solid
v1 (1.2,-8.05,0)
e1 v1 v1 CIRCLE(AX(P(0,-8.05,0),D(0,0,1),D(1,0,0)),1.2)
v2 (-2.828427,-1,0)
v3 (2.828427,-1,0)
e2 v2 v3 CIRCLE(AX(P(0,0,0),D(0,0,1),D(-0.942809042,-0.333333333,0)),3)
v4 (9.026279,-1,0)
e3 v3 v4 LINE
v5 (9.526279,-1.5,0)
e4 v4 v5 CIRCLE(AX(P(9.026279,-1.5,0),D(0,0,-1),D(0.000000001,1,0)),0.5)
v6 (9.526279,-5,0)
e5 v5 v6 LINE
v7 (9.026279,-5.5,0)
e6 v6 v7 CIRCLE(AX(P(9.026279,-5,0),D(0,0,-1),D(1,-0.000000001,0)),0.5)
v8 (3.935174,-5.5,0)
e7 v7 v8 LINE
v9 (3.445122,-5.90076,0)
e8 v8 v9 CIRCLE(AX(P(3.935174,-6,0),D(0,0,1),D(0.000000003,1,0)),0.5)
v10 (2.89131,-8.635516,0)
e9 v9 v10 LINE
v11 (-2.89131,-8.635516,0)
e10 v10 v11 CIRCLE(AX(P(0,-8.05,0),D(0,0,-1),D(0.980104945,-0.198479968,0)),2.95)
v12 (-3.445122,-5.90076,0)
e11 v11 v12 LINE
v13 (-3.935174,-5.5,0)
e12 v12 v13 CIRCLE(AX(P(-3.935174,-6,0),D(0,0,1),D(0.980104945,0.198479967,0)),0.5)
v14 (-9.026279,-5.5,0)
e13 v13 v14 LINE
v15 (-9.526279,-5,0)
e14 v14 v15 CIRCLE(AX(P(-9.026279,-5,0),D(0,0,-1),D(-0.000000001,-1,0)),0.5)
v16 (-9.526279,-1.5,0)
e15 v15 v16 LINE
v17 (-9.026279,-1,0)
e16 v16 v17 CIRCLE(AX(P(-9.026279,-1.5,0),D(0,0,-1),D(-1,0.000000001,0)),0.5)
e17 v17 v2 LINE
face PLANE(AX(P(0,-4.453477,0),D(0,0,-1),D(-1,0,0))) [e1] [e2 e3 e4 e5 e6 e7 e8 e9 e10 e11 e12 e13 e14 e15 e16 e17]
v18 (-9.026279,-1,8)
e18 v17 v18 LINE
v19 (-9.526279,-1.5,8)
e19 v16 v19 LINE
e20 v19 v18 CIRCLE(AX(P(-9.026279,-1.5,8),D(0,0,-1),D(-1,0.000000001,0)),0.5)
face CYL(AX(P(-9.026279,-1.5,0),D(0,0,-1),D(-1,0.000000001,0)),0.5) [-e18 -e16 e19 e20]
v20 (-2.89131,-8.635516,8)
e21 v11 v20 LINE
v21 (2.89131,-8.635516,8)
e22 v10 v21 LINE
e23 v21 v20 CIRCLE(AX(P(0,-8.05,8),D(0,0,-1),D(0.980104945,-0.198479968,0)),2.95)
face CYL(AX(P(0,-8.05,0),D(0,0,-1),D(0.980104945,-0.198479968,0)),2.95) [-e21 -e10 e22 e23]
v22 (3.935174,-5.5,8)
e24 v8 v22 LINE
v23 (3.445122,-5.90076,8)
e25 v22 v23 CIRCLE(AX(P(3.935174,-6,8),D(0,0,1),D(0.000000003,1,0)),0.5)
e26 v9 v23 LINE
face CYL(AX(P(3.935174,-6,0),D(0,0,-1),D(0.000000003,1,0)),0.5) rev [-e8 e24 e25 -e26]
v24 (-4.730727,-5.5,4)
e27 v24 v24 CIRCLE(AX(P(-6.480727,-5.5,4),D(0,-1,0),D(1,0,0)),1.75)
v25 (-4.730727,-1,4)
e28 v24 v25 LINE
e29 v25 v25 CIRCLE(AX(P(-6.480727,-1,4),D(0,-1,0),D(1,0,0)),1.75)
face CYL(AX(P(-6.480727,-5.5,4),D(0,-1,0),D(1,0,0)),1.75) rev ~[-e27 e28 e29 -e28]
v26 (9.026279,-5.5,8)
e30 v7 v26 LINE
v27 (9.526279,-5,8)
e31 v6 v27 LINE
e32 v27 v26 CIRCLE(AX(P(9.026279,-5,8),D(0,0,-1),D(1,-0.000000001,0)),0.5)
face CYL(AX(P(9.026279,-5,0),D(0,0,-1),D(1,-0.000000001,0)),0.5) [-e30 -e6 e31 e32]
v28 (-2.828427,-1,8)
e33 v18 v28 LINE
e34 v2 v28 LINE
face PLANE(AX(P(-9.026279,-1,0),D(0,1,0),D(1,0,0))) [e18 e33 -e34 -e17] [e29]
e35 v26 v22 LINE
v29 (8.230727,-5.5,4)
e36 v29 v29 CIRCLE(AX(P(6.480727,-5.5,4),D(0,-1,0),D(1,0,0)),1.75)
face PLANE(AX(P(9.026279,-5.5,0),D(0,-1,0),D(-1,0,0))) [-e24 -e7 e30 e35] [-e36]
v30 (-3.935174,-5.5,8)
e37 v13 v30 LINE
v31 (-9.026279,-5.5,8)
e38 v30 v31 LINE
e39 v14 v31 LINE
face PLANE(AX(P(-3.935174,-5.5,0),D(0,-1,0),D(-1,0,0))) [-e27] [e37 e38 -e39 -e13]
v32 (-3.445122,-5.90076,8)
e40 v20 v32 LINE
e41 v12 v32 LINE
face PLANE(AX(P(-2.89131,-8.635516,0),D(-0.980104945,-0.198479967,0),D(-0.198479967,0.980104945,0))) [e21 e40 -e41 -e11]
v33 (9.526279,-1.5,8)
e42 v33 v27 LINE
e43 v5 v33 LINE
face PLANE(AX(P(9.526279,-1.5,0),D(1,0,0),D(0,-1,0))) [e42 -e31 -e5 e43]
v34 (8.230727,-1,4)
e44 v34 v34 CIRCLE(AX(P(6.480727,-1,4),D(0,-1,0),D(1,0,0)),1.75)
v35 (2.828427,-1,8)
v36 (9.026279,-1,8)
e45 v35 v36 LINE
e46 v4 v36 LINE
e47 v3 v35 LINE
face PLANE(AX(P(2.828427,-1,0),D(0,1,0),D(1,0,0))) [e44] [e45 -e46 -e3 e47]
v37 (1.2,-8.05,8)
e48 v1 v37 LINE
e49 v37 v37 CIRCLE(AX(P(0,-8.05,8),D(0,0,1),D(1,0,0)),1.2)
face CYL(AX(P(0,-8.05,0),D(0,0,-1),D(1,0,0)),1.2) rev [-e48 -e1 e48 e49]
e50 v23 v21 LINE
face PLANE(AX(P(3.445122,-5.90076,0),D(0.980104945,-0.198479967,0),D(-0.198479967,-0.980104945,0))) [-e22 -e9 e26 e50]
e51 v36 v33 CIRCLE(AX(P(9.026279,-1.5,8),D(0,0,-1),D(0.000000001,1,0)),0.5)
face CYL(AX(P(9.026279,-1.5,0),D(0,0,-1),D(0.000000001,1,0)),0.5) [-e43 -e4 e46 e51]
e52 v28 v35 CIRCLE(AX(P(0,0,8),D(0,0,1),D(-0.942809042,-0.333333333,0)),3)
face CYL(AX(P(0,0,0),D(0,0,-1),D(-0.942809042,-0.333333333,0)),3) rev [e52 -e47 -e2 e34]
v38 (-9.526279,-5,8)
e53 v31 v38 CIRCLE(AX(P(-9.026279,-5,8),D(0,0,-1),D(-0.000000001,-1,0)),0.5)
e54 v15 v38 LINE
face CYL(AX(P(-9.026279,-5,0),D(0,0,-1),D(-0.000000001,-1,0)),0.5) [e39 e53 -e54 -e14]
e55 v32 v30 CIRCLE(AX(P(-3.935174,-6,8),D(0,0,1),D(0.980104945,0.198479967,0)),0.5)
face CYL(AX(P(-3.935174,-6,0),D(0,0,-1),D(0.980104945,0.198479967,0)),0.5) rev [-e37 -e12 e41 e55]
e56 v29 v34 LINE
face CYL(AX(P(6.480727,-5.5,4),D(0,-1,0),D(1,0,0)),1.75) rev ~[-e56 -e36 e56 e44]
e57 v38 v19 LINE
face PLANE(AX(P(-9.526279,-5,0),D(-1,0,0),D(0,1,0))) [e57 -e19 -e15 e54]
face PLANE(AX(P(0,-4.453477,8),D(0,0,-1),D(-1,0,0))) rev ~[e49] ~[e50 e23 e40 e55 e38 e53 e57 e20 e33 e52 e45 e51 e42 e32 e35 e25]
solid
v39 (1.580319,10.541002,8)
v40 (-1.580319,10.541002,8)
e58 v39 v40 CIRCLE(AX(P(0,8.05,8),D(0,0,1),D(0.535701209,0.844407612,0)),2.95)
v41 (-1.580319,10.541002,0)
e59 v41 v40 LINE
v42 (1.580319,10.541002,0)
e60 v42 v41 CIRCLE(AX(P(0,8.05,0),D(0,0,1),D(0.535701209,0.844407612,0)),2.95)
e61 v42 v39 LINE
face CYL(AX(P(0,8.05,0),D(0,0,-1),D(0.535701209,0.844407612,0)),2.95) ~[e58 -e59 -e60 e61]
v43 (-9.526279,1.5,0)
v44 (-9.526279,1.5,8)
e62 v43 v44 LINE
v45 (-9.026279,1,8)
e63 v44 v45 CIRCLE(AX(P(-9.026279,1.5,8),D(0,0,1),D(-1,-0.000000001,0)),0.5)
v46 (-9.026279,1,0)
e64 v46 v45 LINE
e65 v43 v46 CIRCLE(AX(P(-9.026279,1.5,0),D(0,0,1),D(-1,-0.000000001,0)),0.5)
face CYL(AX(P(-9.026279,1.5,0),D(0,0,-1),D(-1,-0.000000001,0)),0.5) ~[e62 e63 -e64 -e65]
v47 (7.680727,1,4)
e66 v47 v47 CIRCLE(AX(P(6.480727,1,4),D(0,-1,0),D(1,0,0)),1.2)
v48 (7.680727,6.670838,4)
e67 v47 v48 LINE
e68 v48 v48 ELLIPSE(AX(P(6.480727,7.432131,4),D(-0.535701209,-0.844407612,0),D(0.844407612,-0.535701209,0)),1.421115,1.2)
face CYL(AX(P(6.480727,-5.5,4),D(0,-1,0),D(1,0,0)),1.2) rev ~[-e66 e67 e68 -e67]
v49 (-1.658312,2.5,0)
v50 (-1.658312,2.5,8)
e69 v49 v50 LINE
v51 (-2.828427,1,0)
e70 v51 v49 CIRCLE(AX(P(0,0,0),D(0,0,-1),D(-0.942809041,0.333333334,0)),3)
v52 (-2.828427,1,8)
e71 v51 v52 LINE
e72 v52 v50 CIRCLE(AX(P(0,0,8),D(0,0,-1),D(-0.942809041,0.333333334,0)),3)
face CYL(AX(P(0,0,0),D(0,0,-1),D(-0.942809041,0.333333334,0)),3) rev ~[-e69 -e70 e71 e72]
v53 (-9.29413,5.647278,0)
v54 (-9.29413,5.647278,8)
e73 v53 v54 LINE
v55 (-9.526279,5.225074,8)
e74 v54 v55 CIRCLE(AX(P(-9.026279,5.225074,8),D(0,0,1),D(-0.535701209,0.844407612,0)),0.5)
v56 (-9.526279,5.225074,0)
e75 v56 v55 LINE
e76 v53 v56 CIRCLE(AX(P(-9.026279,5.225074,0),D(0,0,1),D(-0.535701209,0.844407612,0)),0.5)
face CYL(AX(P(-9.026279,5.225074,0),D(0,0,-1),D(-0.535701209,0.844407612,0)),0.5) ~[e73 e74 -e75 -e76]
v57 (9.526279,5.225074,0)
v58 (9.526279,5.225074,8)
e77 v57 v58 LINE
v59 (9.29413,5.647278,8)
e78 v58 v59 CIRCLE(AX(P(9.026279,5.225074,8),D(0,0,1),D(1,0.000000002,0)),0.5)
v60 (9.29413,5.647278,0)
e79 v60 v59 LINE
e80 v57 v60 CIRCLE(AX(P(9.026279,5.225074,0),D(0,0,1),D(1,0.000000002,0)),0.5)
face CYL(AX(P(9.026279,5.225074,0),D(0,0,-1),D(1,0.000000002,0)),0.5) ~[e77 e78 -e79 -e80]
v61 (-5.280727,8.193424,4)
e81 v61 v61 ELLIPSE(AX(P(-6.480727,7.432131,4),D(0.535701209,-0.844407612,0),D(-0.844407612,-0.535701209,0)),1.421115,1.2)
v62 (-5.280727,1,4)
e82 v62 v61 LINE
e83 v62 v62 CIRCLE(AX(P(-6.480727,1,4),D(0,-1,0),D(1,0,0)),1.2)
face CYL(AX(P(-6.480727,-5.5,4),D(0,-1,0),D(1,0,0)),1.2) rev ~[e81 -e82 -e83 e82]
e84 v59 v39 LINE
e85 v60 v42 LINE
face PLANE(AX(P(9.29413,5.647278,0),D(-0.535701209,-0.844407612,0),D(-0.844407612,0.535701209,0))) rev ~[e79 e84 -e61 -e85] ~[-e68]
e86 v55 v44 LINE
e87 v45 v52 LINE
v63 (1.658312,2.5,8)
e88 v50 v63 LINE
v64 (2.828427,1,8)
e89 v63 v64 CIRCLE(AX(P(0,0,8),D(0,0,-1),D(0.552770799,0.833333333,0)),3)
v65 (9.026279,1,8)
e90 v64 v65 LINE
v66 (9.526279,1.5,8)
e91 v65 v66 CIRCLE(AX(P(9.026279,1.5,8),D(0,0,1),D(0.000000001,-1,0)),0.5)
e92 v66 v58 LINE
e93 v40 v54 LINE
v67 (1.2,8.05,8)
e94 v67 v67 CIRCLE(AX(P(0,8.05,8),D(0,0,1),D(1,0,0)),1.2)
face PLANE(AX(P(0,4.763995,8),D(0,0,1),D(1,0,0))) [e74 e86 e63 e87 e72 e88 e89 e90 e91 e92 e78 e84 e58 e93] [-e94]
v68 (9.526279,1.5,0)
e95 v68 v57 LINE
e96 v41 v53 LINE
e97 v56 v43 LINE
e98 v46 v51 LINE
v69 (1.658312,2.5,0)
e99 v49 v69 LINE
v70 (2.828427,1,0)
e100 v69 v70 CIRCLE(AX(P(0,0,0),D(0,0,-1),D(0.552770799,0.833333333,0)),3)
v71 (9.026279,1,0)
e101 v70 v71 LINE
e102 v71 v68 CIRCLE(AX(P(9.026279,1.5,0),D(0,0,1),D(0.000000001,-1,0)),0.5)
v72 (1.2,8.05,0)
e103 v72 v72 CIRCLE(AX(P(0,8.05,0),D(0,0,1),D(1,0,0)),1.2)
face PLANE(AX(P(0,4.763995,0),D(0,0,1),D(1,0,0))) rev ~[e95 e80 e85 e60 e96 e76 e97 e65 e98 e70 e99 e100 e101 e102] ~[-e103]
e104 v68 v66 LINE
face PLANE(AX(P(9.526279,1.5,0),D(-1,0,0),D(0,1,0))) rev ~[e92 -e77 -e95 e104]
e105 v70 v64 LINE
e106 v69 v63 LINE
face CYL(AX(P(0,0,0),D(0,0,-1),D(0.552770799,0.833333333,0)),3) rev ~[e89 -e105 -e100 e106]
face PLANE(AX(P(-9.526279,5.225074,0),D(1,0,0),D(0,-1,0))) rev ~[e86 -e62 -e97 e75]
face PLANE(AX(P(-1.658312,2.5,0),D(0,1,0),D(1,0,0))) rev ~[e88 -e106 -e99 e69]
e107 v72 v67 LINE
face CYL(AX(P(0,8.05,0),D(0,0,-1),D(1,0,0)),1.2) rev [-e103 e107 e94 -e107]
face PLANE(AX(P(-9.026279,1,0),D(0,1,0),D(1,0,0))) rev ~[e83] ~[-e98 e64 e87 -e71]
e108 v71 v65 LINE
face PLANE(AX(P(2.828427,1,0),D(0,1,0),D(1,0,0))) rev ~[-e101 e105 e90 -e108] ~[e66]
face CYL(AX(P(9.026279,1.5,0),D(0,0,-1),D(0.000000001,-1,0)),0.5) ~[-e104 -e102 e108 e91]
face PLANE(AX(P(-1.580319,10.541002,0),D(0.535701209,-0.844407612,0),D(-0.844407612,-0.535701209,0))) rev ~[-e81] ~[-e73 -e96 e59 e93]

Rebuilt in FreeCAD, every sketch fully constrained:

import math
import FreeCAD as App
import Part
import Sketcher

V = App.Vector
Q = App.Units.Quantity

doc = App.newDocument("Part")
params = doc.addObject("Spreadsheet::Sheet", "Params")
for row, (alias, value) in enumerate([
    ("sketch1_radius", "3 mm"),
    ("sketch1_diameter", "2.4 mm"),
    ("sketch1_radius2", "0.5 mm"),
    ("sketch1_radius3", "2.95 mm"),
    ("pad1_length", "8 mm"),
    ("sketch2_radius", "3 mm"),
    ("sketch2_diameter", "2.4 mm"),
    ("sketch2_radius2", "0.5 mm"),
    ("sketch2_radius3", "2.95 mm"),
    ("sketch2_height", "3.5 mm"),
    ("pad2_length", "8 mm"),
    ("sketch3_diameter", "2.4 mm"),
    ("pad3_length", "17.5 mm"),
    ("sketch4_diameter", "3.5 mm"),
    ("pocket1_length", "4.5 mm"),
], start=1):
    params.set(f"A{row}", alias)
    params.set(f"B{row}", "=" + value)
    params.setAlias(f"B{row}", alias)

body = doc.addObject("PartDesign::Body", "Body")

sketch1 = body.newObject("Sketcher::SketchObject", "Sketch")
sketch1.AttachmentSupport = (doc.getObject("XY_Plane"), [""])
sketch1.MapMode = "FlatFace"
sketch1.addGeometry([
    Part.LineSegment(V(-1.658312, 2.5, 0), V(1.658312, 2.5, 0)),
    Part.ArcOfCircle(Part.Circle(V(0, 0, 0), V(0, 0, 1), 3), math.radians(19.471221), math.radians(56.44269)),
    Part.LineSegment(V(2.828427, 1, 0), V(9.026279, 1, 0)),
    Part.ArcOfCircle(Part.Circle(V(9.026279, 1.5, 0), V(0, 0, 1), 0.5), math.radians(-90), math.radians(0)),
    Part.LineSegment(V(9.526279, 1.5, 0), V(9.526279, 5.225074, 0)),
    Part.ArcOfCircle(Part.Circle(V(9.026279, 5.225074, 0), V(0, 0, 1), 0.5), math.radians(0), math.radians(57.608522)),
    Part.LineSegment(V(9.29413, 5.647278, 0), V(1.580319, 10.541002, 0)),
    Part.ArcOfCircle(Part.Circle(V(0, 8.05, 0), V(0, 0, 1), 2.95), math.radians(57.608522), math.radians(122.391478)),
    Part.LineSegment(V(-1.580319, 10.541002, 0), V(-9.29413, 5.647278, 0)),
    Part.ArcOfCircle(Part.Circle(V(-9.026279, 5.225074, 0), V(0, 0, 1), 0.5), math.radians(122.391478), math.radians(180)),
    Part.LineSegment(V(-9.526279, 5.225074, 0), V(-9.526279, 1.5, 0)),
    Part.ArcOfCircle(Part.Circle(V(-9.026279, 1.5, 0), V(0, 0, 1), 0.5), math.radians(180), math.radians(270)),
    Part.LineSegment(V(-9.026279, 1, 0), V(-2.828427, 1, 0)),
    Part.ArcOfCircle(Part.Circle(V(0, 0, 0), V(0, 0, 1), 3), math.radians(123.55731), math.radians(160.528779)),
    Part.Circle(V(0, 8.05, 0), V(0, 0, 1), 1.2),
], False)
sketch1.addConstraint([
    Sketcher.Constraint("Coincident", 0, 2, 1, 2),
    Sketcher.Constraint("Coincident", 1, 1, 2, 1),
    Sketcher.Constraint("Tangent", 2, 2, 3, 1),
    Sketcher.Constraint("Tangent", 3, 2, 4, 1),
    Sketcher.Constraint("Tangent", 4, 2, 5, 1),
    Sketcher.Constraint("Tangent", 5, 2, 6, 1),
    Sketcher.Constraint("Tangent", 6, 2, 7, 1),
    Sketcher.Constraint("Tangent", 7, 2, 8, 1),
    Sketcher.Constraint("Tangent", 8, 2, 9, 1),
    Sketcher.Constraint("Tangent", 9, 2, 10, 1),
    Sketcher.Constraint("Tangent", 10, 2, 11, 1),
    Sketcher.Constraint("Tangent", 11, 2, 12, 1),
    Sketcher.Constraint("Coincident", 12, 2, 13, 2),
    Sketcher.Constraint("Coincident", 13, 1, 0, 1),
    Sketcher.Constraint("Horizontal", 0),
    Sketcher.Constraint("Horizontal", 2),
    Sketcher.Constraint("Vertical", 4),
    Sketcher.Constraint("Vertical", 10),
    Sketcher.Constraint("Horizontal", 12),
    Sketcher.Constraint("Coincident", 1, 3, -1, 1),
    Sketcher.Constraint("Coincident", 13, 3, -1, 1),
    Sketcher.Constraint("Coincident", 14, 3, 7, 3),
    Sketcher.Constraint("Equal", 3, 5),
    Sketcher.Constraint("Equal", 5, 9),
    Sketcher.Constraint("Equal", 9, 11),
    Sketcher.Constraint("Equal", 1, 13),
    Sketcher.Constraint("Symmetric", 5, 3, 9, 3, -2),
    Sketcher.Constraint("PointOnObject", 7, 3, -2),
    Sketcher.Constraint("Horizontal", 3, 3, 11, 3),
    Sketcher.Constraint("Radius", 1, Q("3 mm")),
    Sketcher.Constraint("Diameter", 14, Q("2.4 mm")),
    Sketcher.Constraint("Radius", 3, Q("0.5 mm")),
    Sketcher.Constraint("Radius", 7, Q("2.95 mm")),
    Sketcher.Constraint("DistanceY", -1, 1, 1, 1, Q("1 mm")),
    Sketcher.Constraint("DistanceY", 3, 3, 0, 2, Q("1 mm")),
    Sketcher.Constraint("DistanceY", -1, 1, 7, 3, Q("8.05 mm")),
    Sketcher.Constraint("DistanceX", 2, 1, 2, 2, Q("6.197852 mm")),
    Sketcher.Constraint("DistanceY", 4, 1, 4, 2, Q("3.725074 mm")),
])
sketch1.setExpression("Constraints[29]", "Params.sketch1_radius")
sketch1.setExpression("Constraints[30]", "Params.sketch1_diameter")
sketch1.setExpression("Constraints[31]", "Params.sketch1_radius2")
sketch1.setExpression("Constraints[32]", "Params.sketch1_radius3")
pad1 = body.newObject("PartDesign::Pad", "Pad")
pad1.Profile = sketch1
pad1.setExpression("Length", "Params.pad1_length")
body2 = doc.addObject("PartDesign::Body", "Body001")

sketch2 = body2.newObject("Sketcher::SketchObject", "Sketch001")
sketch2.AttachmentSupport = (doc.getObject("XY_Plane001"), [""])
sketch2.MapMode = "FlatFace"
sketch2.addGeometry([
    Part.LineSegment(V(-2.828427, -1, 0), V(-9.026279, -1, 0)),
    Part.ArcOfCircle(Part.Circle(V(-9.026279, -1.5, 0), V(0, 0, 1), 0.5), math.radians(90), math.radians(180)),
    Part.LineSegment(V(-9.526279, -1.5, 0), V(-9.526279, -5, 0)),
    Part.ArcOfCircle(Part.Circle(V(-9.026279, -5, 0), V(0, 0, 1), 0.5), math.radians(180), math.radians(270)),
    Part.LineSegment(V(-9.026279, -5.5, 0), V(-3.935174, -5.5, 0)),
    Part.ArcOfCircle(Part.Circle(V(-3.935174, -6, 0), V(0, 0, 1), 0.5), math.radians(11.448086), math.radians(90)),
    Part.LineSegment(V(-3.445122, -5.90076, 0), V(-2.89131, -8.635516, 0)),
    Part.ArcOfCircle(Part.Circle(V(0, -8.05, 0), V(0, 0, 1), 2.95), math.radians(-168.551914), math.radians(-11.448086)),
    Part.LineSegment(V(2.89131, -8.635516, 0), V(3.445122, -5.90076, 0)),
    Part.ArcOfCircle(Part.Circle(V(3.935174, -6, 0), V(0, 0, 1), 0.5), math.radians(90), math.radians(168.551914)),
    Part.LineSegment(V(3.935174, -5.5, 0), V(9.026279, -5.5, 0)),
    Part.ArcOfCircle(Part.Circle(V(9.026279, -5, 0), V(0, 0, 1), 0.5), math.radians(-90), math.radians(0)),
    Part.LineSegment(V(9.526279, -5, 0), V(9.526279, -1.5, 0)),
    Part.ArcOfCircle(Part.Circle(V(9.026279, -1.5, 0), V(0, 0, 1), 0.5), math.radians(0), math.radians(90)),
    Part.LineSegment(V(9.026279, -1, 0), V(2.828427, -1, 0)),
    Part.ArcOfCircle(Part.Circle(V(0, 0, 0), V(0, 0, 1), 3), math.radians(-160.528779), math.radians(-19.471221)),
    Part.Circle(V(0, -8.05, 0), V(0, 0, 1), 1.2),
], False)
sketch2.addConstraint([
    Sketcher.Constraint("Tangent", 0, 2, 1, 1),
    Sketcher.Constraint("Tangent", 1, 2, 2, 1),
    Sketcher.Constraint("Tangent", 2, 2, 3, 1),
    Sketcher.Constraint("Tangent", 3, 2, 4, 1),
    Sketcher.Constraint("Tangent", 4, 2, 5, 2),
    Sketcher.Constraint("Tangent", 5, 1, 6, 1),
    Sketcher.Constraint("Tangent", 6, 2, 7, 1),
    Sketcher.Constraint("Tangent", 7, 2, 8, 1),
    Sketcher.Constraint("Tangent", 8, 2, 9, 2),
    Sketcher.Constraint("Tangent", 9, 1, 10, 1),
    Sketcher.Constraint("Tangent", 10, 2, 11, 1),
    Sketcher.Constraint("Tangent", 11, 2, 12, 1),
    Sketcher.Constraint("Tangent", 12, 2, 13, 1),
    Sketcher.Constraint("Tangent", 13, 2, 14, 1),
    Sketcher.Constraint("Coincident", 14, 2, 15, 2),
    Sketcher.Constraint("Coincident", 15, 1, 0, 1),
    Sketcher.Constraint("Horizontal", 0),
    Sketcher.Constraint("Vertical", 2),
    Sketcher.Constraint("Horizontal", 4),
    Sketcher.Constraint("Horizontal", 10),
    Sketcher.Constraint("Vertical", 12),
    Sketcher.Constraint("Horizontal", 14),
    Sketcher.Constraint("Coincident", 15, 3, -1, 1),
    Sketcher.Constraint("Coincident", 16, 3, 7, 3),
    Sketcher.Constraint("Equal", 1, 3),
    Sketcher.Constraint("Equal", 3, 5),
    Sketcher.Constraint("Equal", 5, 9),
    Sketcher.Constraint("Equal", 9, 11),
    Sketcher.Constraint("Equal", 11, 13),
    Sketcher.Constraint("Symmetric", 5, 3, 9, 3, -2),
    Sketcher.Constraint("Symmetric", 1, 3, 13, 3, -2),
    Sketcher.Constraint("PointOnObject", 7, 3, -2),
    Sketcher.Constraint("Radius", 15, Q("3 mm")),
    Sketcher.Constraint("Diameter", 16, Q("2.4 mm")),
    Sketcher.Constraint("Radius", 1, Q("0.5 mm")),
    Sketcher.Constraint("Radius", 7, Q("2.95 mm")),
    Sketcher.Constraint("DistanceY", 2, 2, 2, 1, Q("3.5 mm")),
    Sketcher.Constraint("DistanceY", 3, 3, -1, 1, Q("5 mm")),
    Sketcher.Constraint("DistanceY", 7, 3, -1, 1, Q("8.05 mm")),
    Sketcher.Constraint("Distance", 6, Q("2.790268 mm")),
    Sketcher.Constraint("DistanceX", 0, 2, 0, 1, Q("6.197852 mm")),
])
sketch2.setExpression("Constraints[32]", "Params.sketch2_radius")
sketch2.setExpression("Constraints[33]", "Params.sketch2_diameter")
sketch2.setExpression("Constraints[34]", "Params.sketch2_radius2")
sketch2.setExpression("Constraints[35]", "Params.sketch2_radius3")
sketch2.setExpression("Constraints[36]", "Params.sketch2_height")
pad2 = body2.newObject("PartDesign::Pad", "Pad001")
pad2.Profile = sketch2
pad2.setExpression("Length", "Params.pad2_length")
body3 = doc.addObject("PartDesign::Body", "Body002")
body3.AllowCompound = True

sketch3 = body3.newObject("Sketcher::SketchObject", "Sketch002")
sketch3.AttachmentSupport = (doc.getObject("XZ_Plane002"), [""])
sketch3.MapMode = "FlatFace"
sketch3.AttachmentOffset = App.Placement(V(0, 0, 5.5), App.Rotation())
sketch3.addGeometry([
    Part.Circle(V(6.480727, 4, 0), V(0, 0, 1), 1.2),
    Part.Circle(V(-6.480727, 4, 0), V(0, 0, 1), 1.2),
], False)
sketch3.addConstraint([
    Sketcher.Constraint("Equal", 0, 1),
    Sketcher.Constraint("Symmetric", 0, 3, 1, 3, -2),
    Sketcher.Constraint("Diameter", 0, Q("2.4 mm")),
    Sketcher.Constraint("DistanceY", -1, 1, 0, 3, Q("4 mm")),
    Sketcher.Constraint("DistanceX", -1, 1, 0, 3, Q("6.480727 mm")),
])
sketch3.setExpression("Constraints[2]", "Params.sketch3_diameter")
pad3 = body3.newObject("PartDesign::Pad", "Pad002")
pad3.Profile = sketch3
pad3.setExpression("Length", "Params.pad3_length")
pad3.Reversed = True
doc.recompute()

body4 = doc.addObject("PartDesign::Body", "Body003")
body4.BaseFeature = body3
boolean = body.newObject("PartDesign::Boolean", "Boolean")
boolean.Type = "Cut"
boolean.addObjects([body4])
doc.recompute()

boolean2 = body2.newObject("PartDesign::Boolean", "Boolean001")
boolean2.Type = "Cut"
boolean2.addObjects([body3])

sketch4 = body2.newObject("Sketcher::SketchObject", "Sketch003")
sketch4.AttachmentSupport = (doc.getObject("XZ_Plane001"), [""])
sketch4.MapMode = "FlatFace"
sketch4.AttachmentOffset = App.Placement(V(0, 0, 5.5), App.Rotation())
sketch4.addGeometry([
    Part.Circle(V(-6.480727, 4, 0), V(0, 0, 1), 1.75),
    Part.Circle(V(6.480727, 4, 0), V(0, 0, 1), 1.75),
], False)
sketch4.addConstraint([
    Sketcher.Constraint("Equal", 0, 1),
    Sketcher.Constraint("Symmetric", 0, 3, 1, 3, -2),
    Sketcher.Constraint("Diameter", 0, Q("3.5 mm")),
    Sketcher.Constraint("DistanceY", -1, 1, 0, 3, Q("4 mm")),
    Sketcher.Constraint("DistanceX", 0, 3, -1, 1, Q("6.480727 mm")),
])
sketch4.setExpression("Constraints[2]", "Params.sketch4_diameter")
pocket1 = body2.newObject("PartDesign::Pocket", "Pocket")
pocket1.Profile = sketch4
pocket1.setExpression("Length", "Params.pocket1_length")

doc.recompute()
